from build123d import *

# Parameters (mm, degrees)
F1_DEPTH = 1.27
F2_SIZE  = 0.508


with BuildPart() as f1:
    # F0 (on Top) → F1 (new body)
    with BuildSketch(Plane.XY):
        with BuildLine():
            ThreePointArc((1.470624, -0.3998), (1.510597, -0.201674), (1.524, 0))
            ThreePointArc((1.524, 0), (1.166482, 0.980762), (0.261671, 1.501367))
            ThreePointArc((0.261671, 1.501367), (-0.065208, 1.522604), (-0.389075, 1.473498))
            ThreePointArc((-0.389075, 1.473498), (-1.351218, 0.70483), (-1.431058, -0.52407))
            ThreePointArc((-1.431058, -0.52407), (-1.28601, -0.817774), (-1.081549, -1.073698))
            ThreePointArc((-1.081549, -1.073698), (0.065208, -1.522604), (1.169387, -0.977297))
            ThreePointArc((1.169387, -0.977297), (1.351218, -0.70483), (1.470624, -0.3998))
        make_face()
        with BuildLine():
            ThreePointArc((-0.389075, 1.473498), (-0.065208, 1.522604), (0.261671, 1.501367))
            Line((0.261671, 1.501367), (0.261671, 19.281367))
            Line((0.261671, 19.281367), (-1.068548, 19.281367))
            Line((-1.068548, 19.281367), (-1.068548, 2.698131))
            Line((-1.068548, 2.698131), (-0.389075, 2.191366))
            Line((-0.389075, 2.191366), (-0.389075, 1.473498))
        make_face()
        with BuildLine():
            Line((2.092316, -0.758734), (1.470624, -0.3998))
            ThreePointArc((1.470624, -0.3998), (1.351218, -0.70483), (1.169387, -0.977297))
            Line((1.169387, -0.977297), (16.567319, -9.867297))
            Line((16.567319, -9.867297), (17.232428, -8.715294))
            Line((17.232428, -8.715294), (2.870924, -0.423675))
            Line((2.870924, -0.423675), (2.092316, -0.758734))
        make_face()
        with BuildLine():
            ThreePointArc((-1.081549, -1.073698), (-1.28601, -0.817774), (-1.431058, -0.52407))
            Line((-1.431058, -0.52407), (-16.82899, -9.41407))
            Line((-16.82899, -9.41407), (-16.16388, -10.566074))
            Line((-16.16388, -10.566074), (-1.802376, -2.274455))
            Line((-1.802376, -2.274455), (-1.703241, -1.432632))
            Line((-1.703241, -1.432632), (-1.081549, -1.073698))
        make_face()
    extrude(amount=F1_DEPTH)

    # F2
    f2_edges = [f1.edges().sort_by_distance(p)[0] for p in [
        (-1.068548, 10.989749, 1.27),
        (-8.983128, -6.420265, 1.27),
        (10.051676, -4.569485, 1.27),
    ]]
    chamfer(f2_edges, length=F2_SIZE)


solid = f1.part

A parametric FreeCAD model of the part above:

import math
import FreeCAD as App
import Part
import Sketcher

V = App.Vector
Q = App.Units.Quantity


def edges_at(feature, points):
    """Names of the edges that pass closest to the given points."""
    edges = feature.Shape.Edges
    near = lambda p: min(range(len(edges)), key=lambda i: edges[i].distToShape(Part.Vertex(*p))[0])
    return sorted({f"Edge{near(p) + 1}" for p in points})

doc = App.newDocument("Part")
body = doc.addObject("PartDesign::Body", "Body")

sketch1 = body.newObject("Sketcher::SketchObject", "Sketch")
sketch1.AttachmentSupport = (doc.getObject("XY_Plane"), [""])
sketch1.MapMode = "FlatFace"
sketch1.addGeometry([
    Part.ArcOfCircle(Part.Circle(V(0.000008, 0, 0), V(0, 0, 1), 1.523992), math.radians(-15.208803), math.radians(-0.000009)),
    Part.ArcOfCircle(Part.Circle(V(-0.000001, -0.000001, 0), V(0, 0, 1), 1.524001), math.radians(0.000042), math.radians(80.113293)),
    Part.LineSegment(V(0.261671, 1.501367, 0), V(0.261671, 19.281367, 0)),
    Part.LineSegment(V(0.261671, 19.281367, 0), V(-1.068548, 19.281367, 0)),
    Part.LineSegment(V(-1.068548, 19.281367, 0), V(-1.068548, 2.698131, 0)),
    Part.LineSegment(V(-1.068548, 2.698131, 0), V(-0.389075, 2.191366, 0)),
    Part.LineSegment(V(-0.389075, 2.191366, 0), V(-0.389075, 1.473498, 0)),
    Part.ArcOfCircle(Part.Circle(V(0, 0, 0), V(0, 0, 1), 1.524), math.radians(104.791291), math.radians(200.113294)),
    Part.LineSegment(V(-1.431058, -0.52407, 0), V(-16.82899, -9.41407, 0)),
    Part.LineSegment(V(-16.82899, -9.41407, 0), V(-16.16388, -10.566074, 0)),
    Part.LineSegment(V(-16.16388, -10.566074, 0), V(-1.802376, -2.274455, 0)),
    Part.LineSegment(V(-1.802376, -2.274455, 0), V(-1.703241, -1.432632, 0)),
    Part.LineSegment(V(-1.703241, -1.432632, 0), V(-1.081549, -1.073698, 0)),
    Part.ArcOfCircle(Part.Circle(V(0, 0, 0), V(0, 0, 1), 1.524), math.radians(-135.208698), math.radians(-39.886678)),
    Part.LineSegment(V(1.169387, -0.977297, 0), V(16.567319, -9.867297, 0)),
    Part.LineSegment(V(16.567319, -9.867297, 0), V(17.232428, -8.715294, 0)),
    Part.LineSegment(V(17.232428, -8.715294, 0), V(2.870924, -0.423675, 0)),
    Part.LineSegment(V(2.870924, -0.423675, 0), V(2.092316, -0.758734, 0)),
    Part.LineSegment(V(2.092316, -0.758734, 0), V(1.470624, -0.3998, 0)),
], False)
sketch1.addConstraint([
    Sketcher.Constraint("Tangent", 0, 2, 1, 1),
    Sketcher.Constraint("Coincident", 1, 2, 2, 1),
    Sketcher.Constraint("Coincident", 2, 2, 3, 1),
    Sketcher.Constraint("Coincident", 3, 2, 4, 1),
    Sketcher.Constraint("Coincident", 4, 2, 5, 1),
    Sketcher.Constraint("Coincident", 5, 2, 6, 1),
    Sketcher.Constraint("Coincident", 6, 2, 7, 1),
    Sketcher.Constraint("Coincident", 7, 2, 8, 1),
    Sketcher.Constraint("Coincident", 8, 2, 9, 1),
    Sketcher.Constraint("Coincident", 9, 2, 10, 1),
    Sketcher.Constraint("Coincident", 10, 2, 11, 1),
    Sketcher.Constraint("Coincident", 11, 2, 12, 1),
    Sketcher.Constraint("Coincident", 12, 2, 13, 1),
    Sketcher.Constraint("Coincident", 13, 2, 14, 1),
    Sketcher.Constraint("Coincident", 14, 2, 15, 1),
    Sketcher.Constraint("Coincident", 15, 2, 16, 1),
    Sketcher.Constraint("Coincident", 16, 2, 17, 1),
    Sketcher.Constraint("Coincident", 17, 2, 18, 1),
    Sketcher.Constraint("Coincident", 18, 2, 0, 1),
    Sketcher.Constraint("Vertical", 2),
    Sketcher.Constraint("Horizontal", 3),
    Sketcher.Constraint("Vertical", 4),
    Sketcher.Constraint("Vertical", 6),
    Sketcher.Constraint("Coincident", 0, 3, -1, 1),
    Sketcher.Constraint("Coincident", 7, 3, -1, 1),
    Sketcher.Constraint("Coincident", 13, 3, -1, 1),
    Sketcher.Constraint("Equal", 1, 7),
    Sketcher.Constraint("Equal", 7, 13),
    Sketcher.Constraint("PointOnObject", 0, 2, -1),
    Sketcher.Constraint("Perpendicular", 8, 9),
    Sketcher.Constraint("Perpendicular", 9, 10),
    Sketcher.Constraint("Parallel", 10, 12),
    Sketcher.Constraint("Perpendicular", 14, 15),
    Sketcher.Constraint("Perpendicular", 15, 16),
    Sketcher.Constraint("Parallel", 16, 18),
    Sketcher.Constraint("Equal", 5, 11),
    Sketcher.Constraint("Equal", 8, 14),
    Sketcher.Constraint("Equal", 9, 15),
    Sketcher.Constraint("Equal", 10, 16),
    Sketcher.Constraint("Equal", 11, 17),
    Sketcher.Constraint("Equal", 12, 18),
    Sketcher.Constraint("Radius", 1, Q("0.06 in")),
    Sketcher.Constraint("DistanceY", 2, 1, 2, 2, Q("0.7 in")),
    Sketcher.Constraint("Angle", 8, Q("-150.000001 deg")),
    Sketcher.Constraint("Angle", 14, Q("-29.999999 deg")),
    Sketcher.Constraint("Distance", 8, Q("0.7 in")),
    Sketcher.Constraint("DistanceX", -1, 1, 0, 2, Q("0.06 in")),
    Sketcher.Constraint("DistanceX", 3, 2, 3, 1, 1.330219),
    Sketcher.Constraint("DistanceY", 18, 2, -1, 1, 0.3998),
    Sketcher.Constraint("DistanceY", 1, 2, 5, 2, 0.689999),
    Sketcher.Constraint("DistanceY", 7, 3, 6, 2, 1.473498),
    Sketcher.Constraint("DistanceX", 18, 2, 16, 2, 1.4003),
    Sketcher.Constraint("Distance", 5, 0.84764),
    Sketcher.Constraint("Distance", 9, 1.33022),
    Sketcher.Constraint("Distance", 12, 0.717868),
    Sketcher.Constraint("DistanceY", 4, 2, 4, 1, 16.583236),
    Sketcher.Constraint("DistanceX", 7, 2, -1, 1, 1.431058),
])
pad1 = body.newObject("PartDesign::Pad", "Pad")
pad1.Profile = sketch1
pad1.Length = Q("0.05 in")
doc.recompute()

chamfer = body.newObject("PartDesign::Chamfer", "Chamfer")
chamfer.Base = (pad1, edges_at(pad1, [(-1.069, 10.99, 1.27), (-8.983, -6.42, 1.27), (10.052, -4.569, 1.27)]))
chamfer.Size = Q("0.02 in")

doc.recompute()
